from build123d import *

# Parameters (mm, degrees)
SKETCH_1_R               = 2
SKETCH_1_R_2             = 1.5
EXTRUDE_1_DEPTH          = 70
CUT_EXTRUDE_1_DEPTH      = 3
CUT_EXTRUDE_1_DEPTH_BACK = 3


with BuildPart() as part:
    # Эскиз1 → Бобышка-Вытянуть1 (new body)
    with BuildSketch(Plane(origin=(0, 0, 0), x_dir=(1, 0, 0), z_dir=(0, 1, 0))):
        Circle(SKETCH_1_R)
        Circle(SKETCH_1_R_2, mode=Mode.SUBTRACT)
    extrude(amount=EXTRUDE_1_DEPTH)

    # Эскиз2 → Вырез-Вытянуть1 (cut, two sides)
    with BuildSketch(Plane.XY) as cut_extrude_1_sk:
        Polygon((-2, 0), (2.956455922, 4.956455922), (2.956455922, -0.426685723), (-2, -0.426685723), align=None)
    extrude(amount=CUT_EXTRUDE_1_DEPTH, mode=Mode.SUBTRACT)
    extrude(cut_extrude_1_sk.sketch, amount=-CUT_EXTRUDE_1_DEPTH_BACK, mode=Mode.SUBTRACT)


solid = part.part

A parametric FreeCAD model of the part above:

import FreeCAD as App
import Part
import Sketcher
Q = App.Units.Quantity


def add_polygon(sketch, points):
    """Adds a closed chain of lines whose ends are joined by coincident constraints."""
    first, n = sketch.GeometryCount, len(points)
    for a, b in zip(points, points[1:] + points[:1]):
        sketch.addGeometry(Part.LineSegment(App.Vector(*a, 0), App.Vector(*b, 0)), False)
    for i in range(n):
        sketch.addConstraint(Sketcher.Constraint("Coincident", first + i, 2, first + (i + 1) % n, 1))

doc = App.newDocument("Part")
body = doc.addObject("PartDesign::Body", "Body")

sketch1 = doc.addObject("Sketcher::SketchObject", "Sketch")
body.addObject(sketch1)
sketch1.AttachmentSupport = (doc.XZ_Plane, [""])
sketch1.MapMode = "FlatFace"
sketch1.addGeometry(Part.Circle(App.Vector(0, 0, 0), App.Vector(0, 0, 1), 2), False)
sketch1.addGeometry(Part.Circle(App.Vector(0, 0, 0), App.Vector(0, 0, 1), 1.5), False)
sketch1.addConstraint(Sketcher.Constraint("Coincident", 0, 3, -1, 1))
sketch1.addConstraint(Sketcher.Constraint("Coincident", 1, 3, -1, 1))
sketch1.addConstraint(Sketcher.Constraint("Diameter", 0, 4.0))
sketch1.addConstraint(Sketcher.Constraint("Diameter", 1, 3.0))
pad1 = doc.addObject("PartDesign::Pad", "Pad")
body.addObject(pad1)
pad1.Profile = sketch1
pad1.Length = 70
pad1.Reversed = True

sketch2 = doc.addObject("Sketcher::SketchObject", "Sketch001")
body.addObject(sketch2)
sketch2.AttachmentSupport = (doc.XY_Plane, [""])
sketch2.MapMode = "FlatFace"
add_polygon(sketch2, [(2.956456, 4.956456), (-2, 0), (-2, -0.426686), (2.956456, -0.426686)])
sketch2.addConstraint(Sketcher.Constraint("Vertical", 1))
sketch2.addConstraint(Sketcher.Constraint("Horizontal", 2))
sketch2.addConstraint(Sketcher.Constraint("Vertical", 3))
sketch2.addConstraint(Sketcher.Constraint("PointOnObject", 0, 2, -1))
sketch2.addConstraint(Sketcher.Constraint("Angle", 0, Q("-135 deg")))
sketch2.addConstraint(Sketcher.Constraint("DistanceX", 0, 2, -1, 1, 2.0))
sketch2.addConstraint(Sketcher.Constraint("DistanceY", 3, 1, 3, 2, 5.383142))
sketch2.addConstraint(Sketcher.Constraint("DistanceX", 2, 1, 2, 2, 4.956456))
pocket1 = doc.addObject("PartDesign::Pocket", "Pocket")
body.addObject(pocket1)
pocket1.Profile = sketch2
pocket1.Type = "ThroughAll"
pocket1.Midplane = True

doc.recompute()
